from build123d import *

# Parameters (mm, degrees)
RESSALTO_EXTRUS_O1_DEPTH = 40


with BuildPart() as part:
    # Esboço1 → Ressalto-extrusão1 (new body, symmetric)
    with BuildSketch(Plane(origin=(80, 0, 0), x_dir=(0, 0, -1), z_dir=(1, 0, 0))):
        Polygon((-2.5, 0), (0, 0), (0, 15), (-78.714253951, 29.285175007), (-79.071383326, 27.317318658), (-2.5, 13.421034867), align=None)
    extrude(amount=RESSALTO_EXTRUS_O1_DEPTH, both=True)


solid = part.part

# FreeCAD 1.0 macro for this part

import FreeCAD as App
import Part
import Sketcher

doc = App.newDocument("Part")
body = doc.addObject("PartDesign::Body", "Body")

sketch1 = doc.addObject("Sketcher::SketchObject", "Sketch")
body.addObject(sketch1)
sketch1.AttachmentSupport = (doc.YZ_Plane, [""])
sketch1.MapMode = "FlatFace"
sketch1.AttachmentOffset = App.Placement(App.Vector(0, 0, 80), App.Rotation())
sketch1.addGeometry(Part.LineSegment(App.Vector(0, 2.5, 0), App.Vector(0, 0, 0)), False)
sketch1.addGeometry(Part.LineSegment(App.Vector(0, 0, 0), App.Vector(15, 0, 0)), False)
sketch1.addGeometry(Part.LineSegment(App.Vector(15, 0, 0), App.Vector(29.3, 78.7, 0)), False)
sketch1.addGeometry(Part.LineSegment(App.Vector(29.3, 78.7, 0), App.Vector(27.3, 79.1, 0)), False)
sketch1.addGeometry(Part.LineSegment(App.Vector(27.3, 79.1, 0), App.Vector(13.4, 2.5, 0)), False)
sketch1.addGeometry(Part.LineSegment(App.Vector(13.4, 2.5, 0), App.Vector(0, 2.5, 0)), False)
sketch1.addConstraint(Sketcher.Constraint("Coincident", 0, 2, 1, 1))
sketch1.addConstraint(Sketcher.Constraint("Coincident", 1, 2, 2, 1))
sketch1.addConstraint(Sketcher.Constraint("Coincident", 2, 2, 3, 1))
sketch1.addConstraint(Sketcher.Constraint("Coincident", 3, 2, 4, 1))
sketch1.addConstraint(Sketcher.Constraint("Coincident", 4, 2, 5, 1))
sketch1.addConstraint(Sketcher.Constraint("Coincident", 5, 2, 0, 1))
sketch1.addConstraint(Sketcher.Constraint("Vertical", 0))
sketch1.addConstraint(Sketcher.Constraint("Horizontal", 1))
sketch1.addConstraint(Sketcher.Constraint("Horizontal", 5))
sketch1.addConstraint(Sketcher.Constraint("Coincident", 0, 2, -1, 1))
sketch1.addConstraint(Sketcher.Constraint("Perpendicular", 2, 3))
sketch1.addConstraint(Sketcher.Constraint("Perpendicular", 3, 4))
sketch1.addConstraint(Sketcher.Constraint("DistanceX", 1, 1, 1, 2, 15.0))
sketch1.addConstraint(Sketcher.Constraint("Distance", 2, 80.0))
sketch1.addConstraint(Sketcher.Constraint("Distance", 3, 2.0))
sketch1.addConstraint(Sketcher.Constraint("DistanceY", 0, 2, 0, 1, 2.5))
sketch1.addConstraint(Sketcher.Constraint("DistanceX", 5, 2, 5, 1, 13.421035))
pad1 = doc.addObject("PartDesign::Pad", "Pad")
body.addObject(pad1)
pad1.Profile = sketch1
pad1.Length = 80
pad1.Midplane = True

doc.recompute()
